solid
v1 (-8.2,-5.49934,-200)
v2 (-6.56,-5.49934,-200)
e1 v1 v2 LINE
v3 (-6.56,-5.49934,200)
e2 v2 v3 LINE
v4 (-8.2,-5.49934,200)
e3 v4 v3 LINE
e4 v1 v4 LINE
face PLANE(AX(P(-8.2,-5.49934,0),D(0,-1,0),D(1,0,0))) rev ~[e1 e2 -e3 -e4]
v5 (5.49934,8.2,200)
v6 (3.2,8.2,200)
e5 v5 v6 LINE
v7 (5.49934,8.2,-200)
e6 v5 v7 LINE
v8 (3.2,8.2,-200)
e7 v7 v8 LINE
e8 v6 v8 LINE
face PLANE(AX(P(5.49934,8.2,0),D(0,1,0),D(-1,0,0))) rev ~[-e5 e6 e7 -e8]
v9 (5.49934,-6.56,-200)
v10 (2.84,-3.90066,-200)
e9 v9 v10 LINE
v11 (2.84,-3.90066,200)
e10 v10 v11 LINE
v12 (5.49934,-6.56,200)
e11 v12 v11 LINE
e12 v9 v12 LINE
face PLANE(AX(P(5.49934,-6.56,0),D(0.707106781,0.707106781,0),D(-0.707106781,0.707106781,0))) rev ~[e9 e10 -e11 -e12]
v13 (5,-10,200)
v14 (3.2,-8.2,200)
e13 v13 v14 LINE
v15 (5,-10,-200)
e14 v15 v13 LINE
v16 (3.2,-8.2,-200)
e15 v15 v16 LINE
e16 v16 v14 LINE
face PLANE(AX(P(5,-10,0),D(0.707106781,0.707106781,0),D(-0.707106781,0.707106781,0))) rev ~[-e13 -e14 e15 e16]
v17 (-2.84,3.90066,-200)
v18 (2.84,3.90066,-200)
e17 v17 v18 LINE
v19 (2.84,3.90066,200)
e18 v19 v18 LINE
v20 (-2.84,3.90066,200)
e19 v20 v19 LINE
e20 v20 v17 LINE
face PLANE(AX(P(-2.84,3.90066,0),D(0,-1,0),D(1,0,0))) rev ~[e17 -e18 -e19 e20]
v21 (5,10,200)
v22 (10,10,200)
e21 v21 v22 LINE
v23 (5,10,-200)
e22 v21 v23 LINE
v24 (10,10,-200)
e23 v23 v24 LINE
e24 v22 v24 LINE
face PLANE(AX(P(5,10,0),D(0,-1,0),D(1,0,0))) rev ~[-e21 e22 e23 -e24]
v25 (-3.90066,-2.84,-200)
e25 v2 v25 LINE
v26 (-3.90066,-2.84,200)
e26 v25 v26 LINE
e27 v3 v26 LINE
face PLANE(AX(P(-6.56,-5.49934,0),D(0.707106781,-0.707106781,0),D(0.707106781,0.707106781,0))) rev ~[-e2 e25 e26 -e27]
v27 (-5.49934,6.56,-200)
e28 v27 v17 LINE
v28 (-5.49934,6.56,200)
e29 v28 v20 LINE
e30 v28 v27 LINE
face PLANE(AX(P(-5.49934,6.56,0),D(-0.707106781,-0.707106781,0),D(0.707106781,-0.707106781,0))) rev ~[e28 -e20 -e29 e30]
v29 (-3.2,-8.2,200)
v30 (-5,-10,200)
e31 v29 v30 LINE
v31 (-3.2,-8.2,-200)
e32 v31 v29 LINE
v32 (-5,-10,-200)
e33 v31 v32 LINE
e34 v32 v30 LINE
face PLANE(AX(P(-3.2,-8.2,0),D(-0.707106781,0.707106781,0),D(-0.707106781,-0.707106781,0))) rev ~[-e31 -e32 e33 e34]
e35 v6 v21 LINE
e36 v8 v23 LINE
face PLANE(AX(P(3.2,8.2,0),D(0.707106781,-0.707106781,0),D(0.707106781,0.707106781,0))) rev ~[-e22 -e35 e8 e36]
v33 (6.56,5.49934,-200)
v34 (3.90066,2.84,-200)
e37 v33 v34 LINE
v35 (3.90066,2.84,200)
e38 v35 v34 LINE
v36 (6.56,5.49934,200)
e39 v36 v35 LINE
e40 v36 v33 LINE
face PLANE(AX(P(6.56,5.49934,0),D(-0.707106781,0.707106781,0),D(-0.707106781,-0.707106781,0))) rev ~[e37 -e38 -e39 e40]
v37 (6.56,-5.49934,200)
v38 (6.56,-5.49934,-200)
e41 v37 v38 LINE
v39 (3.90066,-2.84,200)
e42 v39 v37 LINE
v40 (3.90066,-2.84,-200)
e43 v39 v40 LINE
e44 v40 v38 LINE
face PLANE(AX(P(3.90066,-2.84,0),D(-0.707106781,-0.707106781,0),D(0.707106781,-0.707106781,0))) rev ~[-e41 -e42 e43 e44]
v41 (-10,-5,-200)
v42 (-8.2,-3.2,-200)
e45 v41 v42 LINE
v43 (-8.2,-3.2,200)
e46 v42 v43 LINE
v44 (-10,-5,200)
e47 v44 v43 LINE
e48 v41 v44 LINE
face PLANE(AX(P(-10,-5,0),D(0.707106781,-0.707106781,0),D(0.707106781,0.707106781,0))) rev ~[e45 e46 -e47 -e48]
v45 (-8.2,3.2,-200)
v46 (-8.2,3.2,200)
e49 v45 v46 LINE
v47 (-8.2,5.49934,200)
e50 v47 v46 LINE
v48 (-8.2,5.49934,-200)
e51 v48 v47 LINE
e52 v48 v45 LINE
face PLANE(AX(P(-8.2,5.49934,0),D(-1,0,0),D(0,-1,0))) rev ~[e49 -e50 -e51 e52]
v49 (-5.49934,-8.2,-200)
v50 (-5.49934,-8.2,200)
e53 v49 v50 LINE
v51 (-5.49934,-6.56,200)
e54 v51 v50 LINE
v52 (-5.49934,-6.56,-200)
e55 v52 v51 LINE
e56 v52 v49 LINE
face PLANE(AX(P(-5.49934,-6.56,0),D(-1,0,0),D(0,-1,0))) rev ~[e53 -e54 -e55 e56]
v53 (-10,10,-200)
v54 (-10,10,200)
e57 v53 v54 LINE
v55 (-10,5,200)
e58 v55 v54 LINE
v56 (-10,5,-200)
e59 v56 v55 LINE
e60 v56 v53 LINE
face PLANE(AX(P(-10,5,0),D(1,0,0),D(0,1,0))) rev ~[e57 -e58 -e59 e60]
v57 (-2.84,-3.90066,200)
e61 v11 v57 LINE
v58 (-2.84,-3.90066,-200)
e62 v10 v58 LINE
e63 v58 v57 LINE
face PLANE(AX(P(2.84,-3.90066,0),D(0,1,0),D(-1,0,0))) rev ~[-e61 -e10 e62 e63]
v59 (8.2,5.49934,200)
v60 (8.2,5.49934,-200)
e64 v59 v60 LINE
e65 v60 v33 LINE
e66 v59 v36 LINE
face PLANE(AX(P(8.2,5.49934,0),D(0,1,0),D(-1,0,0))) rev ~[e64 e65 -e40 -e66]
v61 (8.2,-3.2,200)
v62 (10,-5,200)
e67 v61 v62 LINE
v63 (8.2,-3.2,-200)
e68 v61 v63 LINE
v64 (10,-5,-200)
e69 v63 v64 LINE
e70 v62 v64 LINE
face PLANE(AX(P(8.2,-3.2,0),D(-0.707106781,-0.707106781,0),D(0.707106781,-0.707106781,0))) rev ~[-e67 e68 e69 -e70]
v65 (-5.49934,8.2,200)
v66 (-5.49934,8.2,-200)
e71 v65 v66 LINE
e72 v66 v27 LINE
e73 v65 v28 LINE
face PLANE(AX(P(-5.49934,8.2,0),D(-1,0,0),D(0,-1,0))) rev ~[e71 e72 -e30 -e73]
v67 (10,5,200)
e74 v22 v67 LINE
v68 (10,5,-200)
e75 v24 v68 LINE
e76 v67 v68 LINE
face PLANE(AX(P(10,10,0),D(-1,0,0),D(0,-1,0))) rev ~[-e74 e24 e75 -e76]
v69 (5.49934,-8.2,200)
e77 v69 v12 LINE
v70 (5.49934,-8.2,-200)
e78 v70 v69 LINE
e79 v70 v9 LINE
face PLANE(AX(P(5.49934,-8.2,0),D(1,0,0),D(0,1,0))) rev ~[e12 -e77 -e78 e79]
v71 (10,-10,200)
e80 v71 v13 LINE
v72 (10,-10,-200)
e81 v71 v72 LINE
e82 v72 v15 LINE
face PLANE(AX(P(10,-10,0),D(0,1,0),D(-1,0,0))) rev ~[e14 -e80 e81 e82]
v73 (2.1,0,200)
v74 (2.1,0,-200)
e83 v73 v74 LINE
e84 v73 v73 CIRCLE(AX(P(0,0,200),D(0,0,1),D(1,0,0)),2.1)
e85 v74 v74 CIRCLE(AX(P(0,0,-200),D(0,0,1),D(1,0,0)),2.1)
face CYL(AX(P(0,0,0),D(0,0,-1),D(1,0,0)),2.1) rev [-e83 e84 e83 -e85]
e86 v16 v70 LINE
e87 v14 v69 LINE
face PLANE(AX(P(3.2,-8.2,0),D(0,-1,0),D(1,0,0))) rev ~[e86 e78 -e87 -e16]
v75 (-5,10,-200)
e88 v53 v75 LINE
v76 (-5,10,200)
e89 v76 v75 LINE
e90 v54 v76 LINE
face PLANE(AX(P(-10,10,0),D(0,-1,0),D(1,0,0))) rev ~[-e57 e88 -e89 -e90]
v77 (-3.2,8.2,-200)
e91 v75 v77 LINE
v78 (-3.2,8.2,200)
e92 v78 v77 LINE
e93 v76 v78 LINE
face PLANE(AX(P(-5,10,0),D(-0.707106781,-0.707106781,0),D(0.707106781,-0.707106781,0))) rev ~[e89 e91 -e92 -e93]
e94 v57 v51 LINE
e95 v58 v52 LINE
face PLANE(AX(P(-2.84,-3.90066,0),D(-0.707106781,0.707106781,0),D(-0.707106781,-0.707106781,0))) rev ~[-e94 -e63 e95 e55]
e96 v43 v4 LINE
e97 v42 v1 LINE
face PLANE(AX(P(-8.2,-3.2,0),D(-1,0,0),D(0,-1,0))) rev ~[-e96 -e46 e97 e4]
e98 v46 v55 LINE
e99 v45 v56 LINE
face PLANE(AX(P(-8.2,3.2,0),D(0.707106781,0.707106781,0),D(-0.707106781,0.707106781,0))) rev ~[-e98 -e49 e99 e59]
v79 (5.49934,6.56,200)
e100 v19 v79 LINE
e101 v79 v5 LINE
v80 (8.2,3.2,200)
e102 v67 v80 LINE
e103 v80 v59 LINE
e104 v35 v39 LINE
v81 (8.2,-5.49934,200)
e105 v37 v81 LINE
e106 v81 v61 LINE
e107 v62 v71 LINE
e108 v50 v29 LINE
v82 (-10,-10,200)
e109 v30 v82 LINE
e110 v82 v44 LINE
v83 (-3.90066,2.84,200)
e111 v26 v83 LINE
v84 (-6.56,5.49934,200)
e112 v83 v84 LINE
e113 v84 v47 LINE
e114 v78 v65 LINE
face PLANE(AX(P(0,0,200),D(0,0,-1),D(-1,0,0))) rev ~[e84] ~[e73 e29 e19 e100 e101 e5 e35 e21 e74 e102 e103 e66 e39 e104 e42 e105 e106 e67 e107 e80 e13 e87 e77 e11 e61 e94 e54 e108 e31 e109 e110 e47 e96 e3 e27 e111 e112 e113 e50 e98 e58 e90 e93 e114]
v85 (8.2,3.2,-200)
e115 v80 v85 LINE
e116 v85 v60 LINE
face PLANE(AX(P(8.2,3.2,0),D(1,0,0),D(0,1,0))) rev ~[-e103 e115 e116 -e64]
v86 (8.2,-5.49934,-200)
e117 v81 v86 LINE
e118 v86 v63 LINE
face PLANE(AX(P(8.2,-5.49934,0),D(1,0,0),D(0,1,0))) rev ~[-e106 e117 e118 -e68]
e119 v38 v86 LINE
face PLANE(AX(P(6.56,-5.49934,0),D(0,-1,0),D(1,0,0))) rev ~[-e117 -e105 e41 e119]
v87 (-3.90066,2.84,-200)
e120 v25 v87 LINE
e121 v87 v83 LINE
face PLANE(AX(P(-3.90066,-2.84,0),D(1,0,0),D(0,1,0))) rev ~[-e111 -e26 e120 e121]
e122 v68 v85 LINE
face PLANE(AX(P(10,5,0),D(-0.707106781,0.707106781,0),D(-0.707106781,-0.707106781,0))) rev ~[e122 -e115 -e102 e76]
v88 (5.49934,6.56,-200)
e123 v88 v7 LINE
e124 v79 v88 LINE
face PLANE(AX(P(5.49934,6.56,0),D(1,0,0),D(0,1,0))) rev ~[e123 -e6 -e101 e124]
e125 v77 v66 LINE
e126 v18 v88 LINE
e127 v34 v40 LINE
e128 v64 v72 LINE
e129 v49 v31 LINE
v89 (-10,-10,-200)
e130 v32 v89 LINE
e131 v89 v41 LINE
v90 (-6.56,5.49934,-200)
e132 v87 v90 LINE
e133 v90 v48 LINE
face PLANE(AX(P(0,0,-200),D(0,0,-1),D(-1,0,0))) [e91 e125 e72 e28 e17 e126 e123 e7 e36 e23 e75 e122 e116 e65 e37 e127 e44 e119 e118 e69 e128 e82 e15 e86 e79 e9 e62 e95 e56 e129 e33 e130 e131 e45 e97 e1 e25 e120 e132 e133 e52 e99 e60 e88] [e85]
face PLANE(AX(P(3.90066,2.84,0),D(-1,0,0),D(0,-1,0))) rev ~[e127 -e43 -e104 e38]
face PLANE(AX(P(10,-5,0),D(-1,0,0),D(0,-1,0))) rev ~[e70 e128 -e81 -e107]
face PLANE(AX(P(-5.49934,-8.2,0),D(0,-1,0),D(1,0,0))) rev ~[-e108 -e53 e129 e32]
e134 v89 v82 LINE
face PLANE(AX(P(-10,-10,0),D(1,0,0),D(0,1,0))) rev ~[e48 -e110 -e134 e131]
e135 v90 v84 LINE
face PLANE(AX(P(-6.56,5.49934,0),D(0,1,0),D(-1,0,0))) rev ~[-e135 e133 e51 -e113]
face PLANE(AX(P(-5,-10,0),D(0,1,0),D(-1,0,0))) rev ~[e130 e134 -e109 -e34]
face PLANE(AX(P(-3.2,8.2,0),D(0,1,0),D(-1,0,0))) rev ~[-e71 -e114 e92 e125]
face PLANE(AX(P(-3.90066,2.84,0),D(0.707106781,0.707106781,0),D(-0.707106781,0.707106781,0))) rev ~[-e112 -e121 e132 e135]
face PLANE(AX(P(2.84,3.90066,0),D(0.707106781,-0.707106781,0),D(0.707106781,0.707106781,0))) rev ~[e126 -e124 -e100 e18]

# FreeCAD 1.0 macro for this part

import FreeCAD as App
import Part
import Sketcher
Q = App.Units.Quantity

doc = App.newDocument("Part")
body = doc.addObject("PartDesign::Body", "Body")

# Sketch on XY plane
sketch1 = doc.addObject("Sketcher::SketchObject", "Sketch")
body.addObject(sketch1)
sketch1.AttachmentSupport = (doc.XY_Plane, [""])
sketch1.MapMode = "FlatFace"
sketch1.addGeometry([
    Part.LineSegment(App.Vector(-5, 10, 0), App.Vector(-10, 10, 0)),  # 0
    Part.LineSegment(App.Vector(-10, 10, 0), App.Vector(-10, 5, 0)),  # 1
    Part.LineSegment(App.Vector(-10, 5, 0), App.Vector(-8.2, 3.2, 0)),  # 2
    Part.LineSegment(App.Vector(-8.2, 3.2, 0), App.Vector(-8.2, 5.49934, 0)),  # 3
    Part.LineSegment(App.Vector(-8.2, 5.49934, 0), App.Vector(-6.56, 5.49934, 0)),  # 4
    Part.LineSegment(App.Vector(-6.56, 5.49934, 0), App.Vector(-3.90066, 2.84, 0)),  # 5
    Part.LineSegment(App.Vector(-3.90066, 2.84, 0), App.Vector(-3.90066, -2.84, 0)),  # 6
    Part.LineSegment(App.Vector(-3.90066, -2.84, 0), App.Vector(-6.56, -5.49934, 0)),  # 7
    Part.LineSegment(App.Vector(-6.56, -5.49934, 0), App.Vector(-8.2, -5.49934, 0)),  # 8
    Part.LineSegment(App.Vector(-8.2, -5.49934, 0), App.Vector(-8.2, -3.2, 0)),  # 9
    Part.LineSegment(App.Vector(-8.2, -3.2, 0), App.Vector(-10, -5, 0)),  # 10
    Part.LineSegment(App.Vector(-10, -5, 0), App.Vector(-10, -10, 0)),  # 11
    Part.LineSegment(App.Vector(-10, -10, 0), App.Vector(-5, -10, 0)),  # 12
    Part.LineSegment(App.Vector(-5, -10, 0), App.Vector(-3.2, -8.2, 0)),  # 13
    Part.LineSegment(App.Vector(-3.2, -8.2, 0), App.Vector(-5.49934, -8.2, 0)),  # 14
    Part.LineSegment(App.Vector(-5.49934, -8.2, 0), App.Vector(-5.49934, -6.56, 0)),  # 15
    Part.LineSegment(App.Vector(-5.49934, -6.56, 0), App.Vector(-2.84, -3.90066, 0)),  # 16
    Part.LineSegment(App.Vector(-2.84, -3.90066, 0), App.Vector(2.84, -3.90066, 0)),  # 17
    Part.LineSegment(App.Vector(2.84, -3.90066, 0), App.Vector(5.49934, -6.56, 0)),  # 18
    Part.LineSegment(App.Vector(5.49934, -6.56, 0), App.Vector(5.49934, -8.2, 0)),  # 19
    Part.LineSegment(App.Vector(5.49934, -8.2, 0), App.Vector(3.2, -8.2, 0)),  # 20
    Part.LineSegment(App.Vector(3.2, -8.2, 0), App.Vector(5, -10, 0)),  # 21
    Part.LineSegment(App.Vector(5, -10, 0), App.Vector(10, -10, 0)),  # 22
    Part.LineSegment(App.Vector(10, -10, 0), App.Vector(10, -5, 0)),  # 23
    Part.LineSegment(App.Vector(10, -5, 0), App.Vector(8.2, -3.2, 0)),  # 24
    Part.LineSegment(App.Vector(8.2, -3.2, 0), App.Vector(8.2, -5.49934, 0)),  # 25
    Part.LineSegment(App.Vector(8.2, -5.49934, 0), App.Vector(6.56, -5.49934, 0)),  # 26
    Part.LineSegment(App.Vector(6.56, -5.49934, 0), App.Vector(3.90066, -2.84, 0)),  # 27
    Part.LineSegment(App.Vector(3.90066, -2.84, 0), App.Vector(3.90066, 2.84, 0)),  # 28
    Part.LineSegment(App.Vector(3.90066, 2.84, 0), App.Vector(6.56, 5.49934, 0)),  # 29
    Part.LineSegment(App.Vector(6.56, 5.49934, 0), App.Vector(8.2, 5.49934, 0)),  # 30
    Part.LineSegment(App.Vector(8.2, 5.49934, 0), App.Vector(8.2, 3.2, 0)),  # 31
    Part.LineSegment(App.Vector(8.2, 3.2, 0), App.Vector(10, 5, 0)),  # 32
    Part.LineSegment(App.Vector(10, 5, 0), App.Vector(10, 10, 0)),  # 33
    Part.LineSegment(App.Vector(10, 10, 0), App.Vector(5, 10, 0)),  # 34
    Part.LineSegment(App.Vector(5, 10, 0), App.Vector(3.2, 8.2, 0)),  # 35
    Part.LineSegment(App.Vector(3.2, 8.2, 0), App.Vector(5.49934, 8.2, 0)),  # 36
    Part.LineSegment(App.Vector(5.49934, 8.2, 0), App.Vector(5.49934, 6.56, 0)),  # 37
    Part.LineSegment(App.Vector(5.49934, 6.56, 0), App.Vector(2.84, 3.90066, 0)),  # 38
    Part.LineSegment(App.Vector(2.84, 3.90066, 0), App.Vector(-2.84, 3.90066, 0)),  # 39
    Part.LineSegment(App.Vector(-2.84, 3.90066, 0), App.Vector(-5.49934, 6.56, 0)),  # 40
    Part.LineSegment(App.Vector(-5.49934, 6.56, 0), App.Vector(-5.49934, 8.2, 0)),  # 41
    Part.LineSegment(App.Vector(-5.49934, 8.2, 0), App.Vector(-3.2, 8.2, 0)),  # 42
    Part.LineSegment(App.Vector(-3.2, 8.2, 0), App.Vector(-5, 10, 0)),  # 43
    Part.Circle(App.Vector(0, 0, 0), App.Vector(0, 0, 1), 2.1),  # 44
], False)
sketch1.addConstraint([
    Sketcher.Constraint("Coincident", 0, 2, 1, 1),
    Sketcher.Constraint("Coincident", 1, 2, 2, 1),
    Sketcher.Constraint("Coincident", 2, 2, 3, 1),
    Sketcher.Constraint("Coincident", 3, 2, 4, 1),
    Sketcher.Constraint("Coincident", 4, 2, 5, 1),
    Sketcher.Constraint("Coincident", 5, 2, 6, 1),
    Sketcher.Constraint("Coincident", 6, 2, 7, 1),
    Sketcher.Constraint("Coincident", 7, 2, 8, 1),
    Sketcher.Constraint("Coincident", 8, 2, 9, 1),
    Sketcher.Constraint("Coincident", 9, 2, 10, 1),
    Sketcher.Constraint("Coincident", 10, 2, 11, 1),
    Sketcher.Constraint("Coincident", 11, 2, 12, 1),
    Sketcher.Constraint("Coincident", 12, 2, 13, 1),
    Sketcher.Constraint("Coincident", 13, 2, 14, 1),
    Sketcher.Constraint("Coincident", 14, 2, 15, 1),
    Sketcher.Constraint("Coincident", 15, 2, 16, 1),
    Sketcher.Constraint("Coincident", 16, 2, 17, 1),
    Sketcher.Constraint("Coincident", 17, 2, 18, 1),
    Sketcher.Constraint("Coincident", 18, 2, 19, 1),
    Sketcher.Constraint("Coincident", 19, 2, 20, 1),
    Sketcher.Constraint("Coincident", 20, 2, 21, 1),
    Sketcher.Constraint("Coincident", 21, 2, 22, 1),
    Sketcher.Constraint("Coincident", 22, 2, 23, 1),
    Sketcher.Constraint("Coincident", 23, 2, 24, 1),
    Sketcher.Constraint("Coincident", 24, 2, 25, 1),
    Sketcher.Constraint("Coincident", 25, 2, 26, 1),
    Sketcher.Constraint("Coincident", 26, 2, 27, 1),
    Sketcher.Constraint("Coincident", 27, 2, 28, 1),
    Sketcher.Constraint("Coincident", 28, 2, 29, 1),
    Sketcher.Constraint("Coincident", 29, 2, 30, 1),
    Sketcher.Constraint("Coincident", 30, 2, 31, 1),
    Sketcher.Constraint("Coincident", 31, 2, 32, 1),
    Sketcher.Constraint("Coincident", 32, 2, 33, 1),
    Sketcher.Constraint("Coincident", 33, 2, 34, 1),
    Sketcher.Constraint("Coincident", 34, 2, 35, 1),
    Sketcher.Constraint("Coincident", 35, 2, 36, 1),
    Sketcher.Constraint("Coincident", 36, 2, 37, 1),
    Sketcher.Constraint("Coincident", 37, 2, 38, 1),
    Sketcher.Constraint("Coincident", 38, 2, 39, 1),
    Sketcher.Constraint("Coincident", 39, 2, 40, 1),
    Sketcher.Constraint("Coincident", 40, 2, 41, 1),
    Sketcher.Constraint("Coincident", 41, 2, 42, 1),
    Sketcher.Constraint("Coincident", 42, 2, 43, 1),
    Sketcher.Constraint("Coincident", 43, 2, 0, 1),
    Sketcher.Constraint("Horizontal", 0),
    Sketcher.Constraint("Vertical", 1),
    Sketcher.Constraint("Vertical", 3),
    Sketcher.Constraint("Horizontal", 4),
    Sketcher.Constraint("Vertical", 6),
    Sketcher.Constraint("Horizontal", 8),
    Sketcher.Constraint("Vertical", 9),
    Sketcher.Constraint("Vertical", 11),
    Sketcher.Constraint("Horizontal", 12),
    Sketcher.Constraint("Horizontal", 14),
    Sketcher.Constraint("Vertical", 15),
    Sketcher.Constraint("Horizontal", 17),
    Sketcher.Constraint("Vertical", 19),
    Sketcher.Constraint("Horizontal", 20),
    Sketcher.Constraint("Horizontal", 22),
    Sketcher.Constraint("Vertical", 23),
    Sketcher.Constraint("Vertical", 25),
    Sketcher.Constraint("Horizontal", 26),
    Sketcher.Constraint("Vertical", 28),
    Sketcher.Constraint("Horizontal", 30),
    Sketcher.Constraint("Vertical", 31),
    Sketcher.Constraint("Vertical", 33),
    Sketcher.Constraint("Horizontal", 34),
    Sketcher.Constraint("Horizontal", 36),
    Sketcher.Constraint("Vertical", 37),
    Sketcher.Constraint("Horizontal", 39),
    Sketcher.Constraint("Vertical", 41),
    Sketcher.Constraint("Horizontal", 42),
    Sketcher.Constraint("Coincident", 44, 3, -1, 1),
    Sketcher.Constraint("Symmetric", 0, 2, 22, 2, -1, 1),
    Sketcher.Constraint("Symmetric", 2, 2, 24, 2, -1, 1),
    Sketcher.Constraint("Symmetric", 4, 2, 26, 2, -1, 1),
    Sketcher.Constraint("Symmetric", 5, 2, 27, 2, -1, 1),
    Sketcher.Constraint("Symmetric", 7, 2, 29, 2, -1, 1),
    Sketcher.Constraint("Symmetric", 9, 2, 31, 2, -1, 1),
    Sketcher.Constraint("Symmetric", 10, 2, 32, 2, -1, 1),
    Sketcher.Constraint("Symmetric", 12, 2, 34, 2, -1, 1),
    Sketcher.Constraint("Symmetric", 13, 2, 35, 2, -1, 1),
    Sketcher.Constraint("Symmetric", 15, 2, 37, 2, -1, 1),
    Sketcher.Constraint("Symmetric", 16, 2, 38, 2, -1, 1),
    Sketcher.Constraint("Symmetric", 18, 2, 40, 2, -1, 1),
    Sketcher.Constraint("Symmetric", 20, 2, 42, 2, -1, 1),
    Sketcher.Constraint("Symmetric", 15, 2, 18, 2, -2),
    Sketcher.Constraint("Symmetric", 13, 2, 20, 2, -2),
    Sketcher.Constraint("Symmetric", 12, 2, 21, 2, -2),
    Sketcher.Constraint("Symmetric", 10, 2, 23, 2, -2),
    Sketcher.Constraint("Symmetric", 9, 2, 24, 2, -2),
    Sketcher.Constraint("Symmetric", 7, 2, 26, 2, -2),
    Sketcher.Constraint("Parallel", 2, 5),
    Sketcher.Constraint("Perpendicular", 5, 7),
    Sketcher.Constraint("Parallel", 7, 10),
    Sketcher.Constraint("Parallel", 10, 13),
    Sketcher.Constraint("Parallel", 13, 16),
    Sketcher.Constraint("Perpendicular", 16, 18),
    Sketcher.Constraint("Parallel", 18, 21),
    Sketcher.Constraint("Perpendicular", 27, 29),
    Sketcher.Constraint("Perpendicular", 38, 40),
    Sketcher.Constraint("Parallel", 40, 43),
    Sketcher.Constraint("Equal", 34, 1),
    Sketcher.Constraint("Equal", 42, 3),
    Sketcher.Constraint("Equal", 39, 6),
    Sketcher.Constraint("Equal", 30, 15),
    Sketcher.Constraint("Equal", 10, 13),
    Sketcher.Constraint("Equal", 7, 16),
    Sketcher.Constraint("Diameter", 44, Q("4.2 mm")),
    Sketcher.Constraint("DistanceX", 0, 2, 0, 1, Q("5 mm")),
    Sketcher.Constraint("DistanceX", 0, 2, -1, 1, Q("10 mm")),
    Sketcher.Constraint("DistanceX", 4, 1, 4, 2, Q("1.64 mm")),
    Sketcher.Constraint("DistanceX", 17, 1, 17, 2, Q("5.68 mm")),
    Sketcher.Constraint("DistanceX", 2, 2, -1, 1, Q("8.2 mm")),
    Sketcher.Constraint("DistanceX", 14, 2, 14, 1, Q("2.29934 mm")),
])
pad1 = doc.addObject("PartDesign::Pad", "Pad")
body.addObject(pad1)
pad1.Profile = sketch1
pad1.Length = 400
pad1.Midplane = True

doc.recompute()
